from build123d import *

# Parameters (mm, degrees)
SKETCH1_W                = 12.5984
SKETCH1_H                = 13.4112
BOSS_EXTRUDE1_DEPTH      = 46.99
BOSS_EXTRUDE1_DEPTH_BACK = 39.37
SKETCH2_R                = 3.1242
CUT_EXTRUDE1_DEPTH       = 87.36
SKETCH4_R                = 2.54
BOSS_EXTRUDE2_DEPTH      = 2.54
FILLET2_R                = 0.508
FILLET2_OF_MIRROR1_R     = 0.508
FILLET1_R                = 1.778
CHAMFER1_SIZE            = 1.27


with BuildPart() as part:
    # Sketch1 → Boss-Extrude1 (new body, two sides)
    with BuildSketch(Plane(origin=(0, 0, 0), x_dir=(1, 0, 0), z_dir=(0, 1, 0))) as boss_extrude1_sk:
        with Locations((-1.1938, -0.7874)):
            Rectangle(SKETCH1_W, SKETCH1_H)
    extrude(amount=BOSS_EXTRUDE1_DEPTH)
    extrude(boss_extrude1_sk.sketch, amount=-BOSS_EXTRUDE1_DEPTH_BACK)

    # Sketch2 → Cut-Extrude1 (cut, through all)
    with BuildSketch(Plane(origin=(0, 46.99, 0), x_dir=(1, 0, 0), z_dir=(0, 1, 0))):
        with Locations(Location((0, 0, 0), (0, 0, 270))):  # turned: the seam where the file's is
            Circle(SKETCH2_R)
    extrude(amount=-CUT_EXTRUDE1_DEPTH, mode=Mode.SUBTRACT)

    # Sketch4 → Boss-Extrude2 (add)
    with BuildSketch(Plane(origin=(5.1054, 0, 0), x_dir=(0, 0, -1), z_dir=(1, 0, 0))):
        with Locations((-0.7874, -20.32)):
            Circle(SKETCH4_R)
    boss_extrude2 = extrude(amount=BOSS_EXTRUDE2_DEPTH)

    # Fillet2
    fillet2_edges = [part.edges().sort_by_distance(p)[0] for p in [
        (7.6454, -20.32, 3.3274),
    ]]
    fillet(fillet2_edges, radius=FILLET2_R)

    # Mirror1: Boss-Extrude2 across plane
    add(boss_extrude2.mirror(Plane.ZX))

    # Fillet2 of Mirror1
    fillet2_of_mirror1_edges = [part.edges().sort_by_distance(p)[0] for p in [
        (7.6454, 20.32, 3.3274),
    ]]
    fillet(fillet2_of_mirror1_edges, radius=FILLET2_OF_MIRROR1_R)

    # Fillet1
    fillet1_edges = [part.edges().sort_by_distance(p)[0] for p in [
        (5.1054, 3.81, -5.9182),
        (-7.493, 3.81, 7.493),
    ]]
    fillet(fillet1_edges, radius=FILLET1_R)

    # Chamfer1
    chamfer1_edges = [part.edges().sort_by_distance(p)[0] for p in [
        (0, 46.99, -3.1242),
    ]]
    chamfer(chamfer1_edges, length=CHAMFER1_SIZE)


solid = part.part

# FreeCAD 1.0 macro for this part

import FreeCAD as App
import Part
import Sketcher
from FreeCAD import Vector
Q = App.Units.Quantity


def edges_at(feature, points):
    """Names of the edges that pass closest to the given points."""
    edges = feature.Shape.Edges
    near = lambda p: min(range(len(edges)), key=lambda i: edges[i].distToShape(Part.Vertex(*p))[0])
    return sorted({f"Edge{near(p) + 1}" for p in points})

doc = App.newDocument("Part")
body = doc.addObject("PartDesign::Body", "Body")

# Sketch on XZ plane
sketch1 = body.newObject("Sketcher::SketchObject", "Sketch")
sketch1.AttachmentSupport = (doc.getObject("XZ_Plane"), [""])
sketch1.MapMode = "FlatFace"
sketch1.addGeometry([
    Part.LineSegment(Vector(-7.493, -5.9182, 0), Vector(-7.493, 7.493, 0)),
    Part.LineSegment(Vector(-7.493, 7.493, 0), Vector(5.1054, 7.493, 0)),
    Part.LineSegment(Vector(5.1054, 7.493, 0), Vector(5.1054, -5.9182, 0)),
    Part.LineSegment(Vector(5.1054, -5.9182, 0), Vector(-7.493, -5.9182, 0)),
], False)
sketch1.addConstraint([
    Sketcher.Constraint("Coincident", 0, 2, 1, 1),
    Sketcher.Constraint("Coincident", 1, 2, 2, 1),
    Sketcher.Constraint("Coincident", 2, 2, 3, 1),
    Sketcher.Constraint("Coincident", 3, 2, 0, 1),
    Sketcher.Constraint("Vertical", 0),
    Sketcher.Constraint("Horizontal", 1),
    Sketcher.Constraint("Vertical", 2),
    Sketcher.Constraint("Horizontal", 3),
    Sketcher.Constraint("DistanceX", 1, 1, 1, 2, Q("0.496 in")),
    Sketcher.Constraint("DistanceY", 0, 1, 0, 2, Q("0.528 in")),
    Sketcher.Constraint("DistanceX", 0, 2, -1, 1, Q("0.295 in")),
    Sketcher.Constraint("DistanceY", -1, 1, 0, 2, Q("0.295 in")),
])
pad1 = body.newObject("PartDesign::Pad", "Pad")
pad1.Profile = sketch1
pad1.Type = "TwoLengths"
pad1.Length = Q("1.85 in")
pad1.Length2 = Q("1.55 in")
pad1.Reversed = True

# Sketch on XZ plane
sketch2 = body.newObject("Sketcher::SketchObject", "Sketch001")
sketch2.AttachmentSupport = (doc.getObject("XZ_Plane"), [""])
sketch2.MapMode = "FlatFace"
sketch2.AttachmentOffset = App.Placement(Vector(0, 0, -1.85 * 25.4), App.Rotation())
sketch2.addGeometry(Part.Circle(Vector(0, 0, 0), Vector(0, 0, 1), 3.1242), False)
sketch2.addConstraint([
    Sketcher.Constraint("Coincident", 0, 3, -1, 1),
    Sketcher.Constraint("Diameter", 0, Q("0.246 in")),
])
pocket1 = body.newObject("PartDesign::Pocket", "Pocket")
pocket1.Profile = sketch2
pocket1.Type = "ThroughAll"
pocket1.Reversed = True

# Sketch on YZ plane
sketch3 = body.newObject("Sketcher::SketchObject", "Sketch002")
sketch3.AttachmentSupport = (doc.getObject("YZ_Plane"), [""])
sketch3.MapMode = "FlatFace"
sketch3.AttachmentOffset = App.Placement(Vector(0, 0, 0.201 * 25.4), App.Rotation())
sketch3.addGeometry(Part.Circle(Vector(-20.32, 0.7874, 0), Vector(0, 0, 1), 2.54), False)
sketch3.addConstraint([
    Sketcher.Constraint("Diameter", 0, Q("0.2 in")),
    Sketcher.Constraint("DistanceX", 0, 3, -1, 1, Q("0.8 in")),
    Sketcher.Constraint("DistanceY", -1, 1, 0, 3, Q("0.031 in")),
])
pad2 = body.newObject("PartDesign::Pad", "Pad001")
pad2.Profile = sketch3
pad2.Length = Q("0.1 in")
doc.recompute()

fillet = body.newObject("PartDesign::Fillet", "Fillet")
fillet.Base = (pad2, edges_at(pad2, [(7.645, -20.32, 3.327)]))
fillet.Radius = Q("0.02 in")
doc.recompute()

mirrored = body.newObject("PartDesign::Mirrored", "Mirrored")
mirrored.Originals = [pad2]
mirrored.MirrorPlane = (doc.getObject("XZ_Plane"), [""])
body.Tip = mirrored
doc.recompute()

fillet2 = body.newObject("PartDesign::Fillet", "Fillet001")
fillet2.Base = (mirrored, edges_at(mirrored, [(7.645, 20.32, 3.327)]))
fillet2.Radius = Q("0.02 in")
doc.recompute()

fillet3 = body.newObject("PartDesign::Fillet", "Fillet002")
fillet3.Base = (fillet2, edges_at(fillet2, [(5.105, 3.81, -5.918), (-7.493, 3.81, 7.493)]))
fillet3.Radius = Q("0.07 in")
doc.recompute()

chamfer = body.newObject("PartDesign::Chamfer", "Chamfer")
chamfer.Base = (fillet3, edges_at(fillet3, [(0, 46.99, -3.124)]))
chamfer.Size = Q("0.05 in")

doc.recompute()
